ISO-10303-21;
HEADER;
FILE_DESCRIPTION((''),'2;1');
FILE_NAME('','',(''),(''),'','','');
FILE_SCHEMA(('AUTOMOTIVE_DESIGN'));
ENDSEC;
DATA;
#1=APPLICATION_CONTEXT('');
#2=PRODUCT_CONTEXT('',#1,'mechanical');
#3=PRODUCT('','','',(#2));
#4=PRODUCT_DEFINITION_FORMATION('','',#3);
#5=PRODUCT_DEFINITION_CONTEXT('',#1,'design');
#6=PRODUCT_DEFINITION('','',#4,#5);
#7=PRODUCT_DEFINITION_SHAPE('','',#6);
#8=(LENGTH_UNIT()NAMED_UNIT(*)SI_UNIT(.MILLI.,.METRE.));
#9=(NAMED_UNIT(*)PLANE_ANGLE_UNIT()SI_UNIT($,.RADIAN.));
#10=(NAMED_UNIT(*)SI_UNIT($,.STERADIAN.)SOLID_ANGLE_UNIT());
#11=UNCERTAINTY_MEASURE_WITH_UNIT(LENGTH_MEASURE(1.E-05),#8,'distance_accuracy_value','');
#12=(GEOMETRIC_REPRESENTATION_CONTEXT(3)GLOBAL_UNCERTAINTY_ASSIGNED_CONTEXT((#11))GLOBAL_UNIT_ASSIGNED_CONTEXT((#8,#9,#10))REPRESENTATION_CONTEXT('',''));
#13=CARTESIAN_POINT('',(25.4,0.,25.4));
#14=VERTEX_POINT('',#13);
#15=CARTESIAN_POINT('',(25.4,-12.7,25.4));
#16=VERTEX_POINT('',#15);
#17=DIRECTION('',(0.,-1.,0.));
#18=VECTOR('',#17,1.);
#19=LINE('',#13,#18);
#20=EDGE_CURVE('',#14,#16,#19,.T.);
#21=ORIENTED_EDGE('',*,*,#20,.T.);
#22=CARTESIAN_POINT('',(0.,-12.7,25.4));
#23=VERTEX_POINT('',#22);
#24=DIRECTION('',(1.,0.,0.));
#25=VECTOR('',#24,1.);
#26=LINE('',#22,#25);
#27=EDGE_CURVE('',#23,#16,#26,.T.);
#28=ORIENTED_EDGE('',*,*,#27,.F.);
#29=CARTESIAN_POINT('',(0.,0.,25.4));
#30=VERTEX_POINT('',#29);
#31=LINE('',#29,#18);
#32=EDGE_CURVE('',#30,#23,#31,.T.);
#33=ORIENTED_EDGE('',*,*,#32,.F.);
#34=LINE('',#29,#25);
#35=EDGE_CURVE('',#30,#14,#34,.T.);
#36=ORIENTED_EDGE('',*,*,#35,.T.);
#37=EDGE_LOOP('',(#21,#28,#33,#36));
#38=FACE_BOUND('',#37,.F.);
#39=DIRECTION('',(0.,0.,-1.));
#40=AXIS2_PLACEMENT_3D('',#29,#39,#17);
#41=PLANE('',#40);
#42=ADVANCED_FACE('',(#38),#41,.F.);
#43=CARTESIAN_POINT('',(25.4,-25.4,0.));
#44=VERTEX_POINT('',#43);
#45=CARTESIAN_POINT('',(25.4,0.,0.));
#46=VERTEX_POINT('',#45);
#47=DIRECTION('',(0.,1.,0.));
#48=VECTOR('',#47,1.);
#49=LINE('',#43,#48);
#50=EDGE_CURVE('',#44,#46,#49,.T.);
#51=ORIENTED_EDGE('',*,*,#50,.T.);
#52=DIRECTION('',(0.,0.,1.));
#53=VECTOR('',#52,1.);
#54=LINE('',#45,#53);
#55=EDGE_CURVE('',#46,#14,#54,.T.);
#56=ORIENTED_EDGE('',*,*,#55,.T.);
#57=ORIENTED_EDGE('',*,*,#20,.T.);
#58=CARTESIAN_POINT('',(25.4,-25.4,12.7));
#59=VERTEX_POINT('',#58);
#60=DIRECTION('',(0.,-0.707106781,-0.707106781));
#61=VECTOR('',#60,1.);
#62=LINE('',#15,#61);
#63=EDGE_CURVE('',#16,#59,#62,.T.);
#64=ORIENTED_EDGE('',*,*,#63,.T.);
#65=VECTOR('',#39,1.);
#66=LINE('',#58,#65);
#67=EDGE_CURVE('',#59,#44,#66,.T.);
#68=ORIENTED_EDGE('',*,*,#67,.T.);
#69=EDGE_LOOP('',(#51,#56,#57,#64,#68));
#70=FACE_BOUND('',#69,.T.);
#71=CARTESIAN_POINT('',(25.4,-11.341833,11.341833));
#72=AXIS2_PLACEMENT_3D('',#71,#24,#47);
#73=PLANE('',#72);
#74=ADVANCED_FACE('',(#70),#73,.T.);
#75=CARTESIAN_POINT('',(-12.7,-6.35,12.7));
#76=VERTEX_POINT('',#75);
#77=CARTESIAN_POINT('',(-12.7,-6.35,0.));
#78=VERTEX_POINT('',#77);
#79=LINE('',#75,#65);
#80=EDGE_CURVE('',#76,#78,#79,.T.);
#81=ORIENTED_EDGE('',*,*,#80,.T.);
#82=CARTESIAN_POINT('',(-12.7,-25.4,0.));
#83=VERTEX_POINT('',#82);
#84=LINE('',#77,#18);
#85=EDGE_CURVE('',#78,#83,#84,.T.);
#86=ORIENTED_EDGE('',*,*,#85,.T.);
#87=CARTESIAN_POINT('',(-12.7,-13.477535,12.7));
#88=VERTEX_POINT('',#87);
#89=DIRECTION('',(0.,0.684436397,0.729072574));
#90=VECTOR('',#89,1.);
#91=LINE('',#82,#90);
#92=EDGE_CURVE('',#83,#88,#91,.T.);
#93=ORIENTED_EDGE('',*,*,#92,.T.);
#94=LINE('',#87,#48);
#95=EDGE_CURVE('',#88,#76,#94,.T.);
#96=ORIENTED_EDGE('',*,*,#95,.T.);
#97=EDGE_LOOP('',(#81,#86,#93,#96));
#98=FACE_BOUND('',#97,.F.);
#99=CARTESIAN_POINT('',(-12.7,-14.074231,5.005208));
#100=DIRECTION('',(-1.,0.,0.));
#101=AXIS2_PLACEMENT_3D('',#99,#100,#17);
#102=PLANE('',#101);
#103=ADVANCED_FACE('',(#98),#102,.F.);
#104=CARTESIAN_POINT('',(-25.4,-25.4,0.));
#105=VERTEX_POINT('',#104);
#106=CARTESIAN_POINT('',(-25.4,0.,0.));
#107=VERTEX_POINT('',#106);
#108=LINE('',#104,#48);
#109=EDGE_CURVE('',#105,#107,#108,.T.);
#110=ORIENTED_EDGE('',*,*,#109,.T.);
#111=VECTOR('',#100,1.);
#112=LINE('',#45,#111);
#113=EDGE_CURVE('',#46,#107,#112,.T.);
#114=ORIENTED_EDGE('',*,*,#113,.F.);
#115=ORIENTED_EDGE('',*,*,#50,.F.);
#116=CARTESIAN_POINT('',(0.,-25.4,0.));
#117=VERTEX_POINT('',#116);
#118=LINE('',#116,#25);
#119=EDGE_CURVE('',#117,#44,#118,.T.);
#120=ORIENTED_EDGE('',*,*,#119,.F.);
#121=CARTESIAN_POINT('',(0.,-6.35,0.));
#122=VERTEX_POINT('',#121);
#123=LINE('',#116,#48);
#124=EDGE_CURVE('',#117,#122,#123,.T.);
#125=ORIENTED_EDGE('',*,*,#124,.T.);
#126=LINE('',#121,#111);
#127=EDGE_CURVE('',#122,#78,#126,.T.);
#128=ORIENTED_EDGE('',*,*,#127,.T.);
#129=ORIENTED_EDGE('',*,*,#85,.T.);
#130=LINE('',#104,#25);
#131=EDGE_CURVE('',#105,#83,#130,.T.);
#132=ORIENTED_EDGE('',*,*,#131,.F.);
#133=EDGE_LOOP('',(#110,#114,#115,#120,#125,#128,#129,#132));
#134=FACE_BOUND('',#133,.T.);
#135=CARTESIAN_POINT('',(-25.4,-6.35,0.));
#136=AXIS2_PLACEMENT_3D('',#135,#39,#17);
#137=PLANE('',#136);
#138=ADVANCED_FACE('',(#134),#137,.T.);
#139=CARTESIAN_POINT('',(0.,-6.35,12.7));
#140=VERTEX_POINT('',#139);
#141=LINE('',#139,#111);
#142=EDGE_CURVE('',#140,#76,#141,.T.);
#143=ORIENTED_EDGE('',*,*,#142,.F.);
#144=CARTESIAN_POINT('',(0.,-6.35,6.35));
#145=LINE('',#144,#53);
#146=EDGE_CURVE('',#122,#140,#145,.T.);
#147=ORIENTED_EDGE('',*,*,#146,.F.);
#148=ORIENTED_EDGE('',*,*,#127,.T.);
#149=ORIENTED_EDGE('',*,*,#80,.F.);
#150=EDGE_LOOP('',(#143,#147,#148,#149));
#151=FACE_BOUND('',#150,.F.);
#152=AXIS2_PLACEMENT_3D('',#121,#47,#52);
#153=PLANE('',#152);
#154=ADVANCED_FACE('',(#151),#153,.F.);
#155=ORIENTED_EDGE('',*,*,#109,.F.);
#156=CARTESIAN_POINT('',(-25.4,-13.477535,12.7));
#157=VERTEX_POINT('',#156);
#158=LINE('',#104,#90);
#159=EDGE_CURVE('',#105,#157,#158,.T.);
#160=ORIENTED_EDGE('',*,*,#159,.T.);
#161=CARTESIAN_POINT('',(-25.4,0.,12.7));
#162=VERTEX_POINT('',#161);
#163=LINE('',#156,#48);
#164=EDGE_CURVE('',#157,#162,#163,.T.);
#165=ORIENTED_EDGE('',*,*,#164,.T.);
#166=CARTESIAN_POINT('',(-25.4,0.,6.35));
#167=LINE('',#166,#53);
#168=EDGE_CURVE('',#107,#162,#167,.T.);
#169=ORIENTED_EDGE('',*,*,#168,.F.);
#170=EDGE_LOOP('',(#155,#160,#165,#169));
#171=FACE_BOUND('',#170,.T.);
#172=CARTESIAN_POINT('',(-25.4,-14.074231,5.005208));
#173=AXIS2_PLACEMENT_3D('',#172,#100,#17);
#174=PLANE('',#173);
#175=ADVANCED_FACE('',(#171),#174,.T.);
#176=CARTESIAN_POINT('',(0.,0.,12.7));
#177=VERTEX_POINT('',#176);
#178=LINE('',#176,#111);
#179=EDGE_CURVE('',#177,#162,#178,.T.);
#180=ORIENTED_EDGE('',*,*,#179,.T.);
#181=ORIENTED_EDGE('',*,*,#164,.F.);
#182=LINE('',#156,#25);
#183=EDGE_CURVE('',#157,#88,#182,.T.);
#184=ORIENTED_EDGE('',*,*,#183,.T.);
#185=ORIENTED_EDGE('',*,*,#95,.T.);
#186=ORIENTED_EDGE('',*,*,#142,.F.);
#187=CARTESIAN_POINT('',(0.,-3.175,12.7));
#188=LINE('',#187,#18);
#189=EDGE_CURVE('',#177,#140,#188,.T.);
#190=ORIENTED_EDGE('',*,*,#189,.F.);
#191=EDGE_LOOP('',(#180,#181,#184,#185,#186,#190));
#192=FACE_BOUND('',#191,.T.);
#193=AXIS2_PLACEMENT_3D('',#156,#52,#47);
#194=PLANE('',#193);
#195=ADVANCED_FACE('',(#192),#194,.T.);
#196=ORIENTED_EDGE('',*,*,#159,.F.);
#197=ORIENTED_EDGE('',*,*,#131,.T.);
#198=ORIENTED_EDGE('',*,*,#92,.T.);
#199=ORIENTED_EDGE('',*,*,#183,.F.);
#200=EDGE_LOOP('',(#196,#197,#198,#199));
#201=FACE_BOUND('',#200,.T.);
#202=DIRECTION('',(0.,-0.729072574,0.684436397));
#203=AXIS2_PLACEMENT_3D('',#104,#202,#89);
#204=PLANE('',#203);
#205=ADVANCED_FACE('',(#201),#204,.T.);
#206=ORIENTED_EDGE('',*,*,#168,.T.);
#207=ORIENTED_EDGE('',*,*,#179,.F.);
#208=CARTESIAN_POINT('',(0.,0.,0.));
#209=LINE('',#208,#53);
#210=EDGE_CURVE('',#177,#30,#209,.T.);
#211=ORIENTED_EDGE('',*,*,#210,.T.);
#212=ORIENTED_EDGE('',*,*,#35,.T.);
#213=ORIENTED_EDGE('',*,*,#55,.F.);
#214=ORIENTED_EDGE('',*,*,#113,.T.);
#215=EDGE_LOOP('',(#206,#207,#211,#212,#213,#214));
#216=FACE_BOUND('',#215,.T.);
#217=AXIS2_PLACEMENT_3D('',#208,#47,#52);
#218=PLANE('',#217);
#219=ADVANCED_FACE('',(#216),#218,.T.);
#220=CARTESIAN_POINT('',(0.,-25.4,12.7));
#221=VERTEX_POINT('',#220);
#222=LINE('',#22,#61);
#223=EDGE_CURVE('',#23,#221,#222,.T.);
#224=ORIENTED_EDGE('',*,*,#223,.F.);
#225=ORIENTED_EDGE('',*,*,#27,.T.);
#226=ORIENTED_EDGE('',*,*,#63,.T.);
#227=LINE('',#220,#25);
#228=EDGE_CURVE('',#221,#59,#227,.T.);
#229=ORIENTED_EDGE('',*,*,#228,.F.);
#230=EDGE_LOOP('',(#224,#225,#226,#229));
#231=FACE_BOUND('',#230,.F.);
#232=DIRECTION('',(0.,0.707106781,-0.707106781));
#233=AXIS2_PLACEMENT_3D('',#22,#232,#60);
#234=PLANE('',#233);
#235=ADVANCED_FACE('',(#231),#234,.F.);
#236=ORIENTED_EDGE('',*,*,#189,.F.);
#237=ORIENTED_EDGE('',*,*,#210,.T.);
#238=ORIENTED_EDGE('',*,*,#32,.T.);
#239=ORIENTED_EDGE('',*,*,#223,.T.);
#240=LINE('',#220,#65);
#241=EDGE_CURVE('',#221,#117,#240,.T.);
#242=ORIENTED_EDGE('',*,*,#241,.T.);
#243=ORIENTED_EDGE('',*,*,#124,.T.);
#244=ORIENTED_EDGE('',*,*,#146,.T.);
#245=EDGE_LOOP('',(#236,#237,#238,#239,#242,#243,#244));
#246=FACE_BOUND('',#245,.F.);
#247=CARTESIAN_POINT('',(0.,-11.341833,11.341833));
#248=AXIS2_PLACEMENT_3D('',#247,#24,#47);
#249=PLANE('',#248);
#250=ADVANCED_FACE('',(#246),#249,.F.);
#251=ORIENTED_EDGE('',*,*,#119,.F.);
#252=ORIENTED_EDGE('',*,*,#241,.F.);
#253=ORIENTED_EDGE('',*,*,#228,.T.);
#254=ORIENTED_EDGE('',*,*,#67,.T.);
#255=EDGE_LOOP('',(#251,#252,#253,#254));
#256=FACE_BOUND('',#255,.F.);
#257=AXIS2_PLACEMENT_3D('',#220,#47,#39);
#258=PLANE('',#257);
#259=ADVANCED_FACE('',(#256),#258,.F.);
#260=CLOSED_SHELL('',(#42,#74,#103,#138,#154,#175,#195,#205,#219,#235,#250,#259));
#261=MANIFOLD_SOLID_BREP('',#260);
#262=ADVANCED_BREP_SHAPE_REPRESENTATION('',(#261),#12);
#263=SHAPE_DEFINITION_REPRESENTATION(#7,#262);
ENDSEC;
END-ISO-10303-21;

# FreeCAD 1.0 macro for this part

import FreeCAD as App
import Part
import Sketcher
from FreeCAD import Vector
Q = App.Units.Quantity

doc = App.newDocument("Part")
body = doc.addObject("PartDesign::Body", "Body")

# Sketch on YZ plane
sketch1 = body.newObject("Sketcher::SketchObject", "Sketch")
sketch1.AttachmentSupport = (doc.getObject("YZ_Plane"), [""])
sketch1.MapMode = "FlatFace"
sketch1.addGeometry([
    Part.LineSegment(Vector(-25, 0, 0), Vector(0, 0, 0)),  # 0
    Part.LineSegment(Vector(0, 0, 0), Vector(0, 25, 0)),  # 1
    Part.LineSegment(Vector(0, 25, 0), Vector(-13, 25, 0)),  # 2
    Part.LineSegment(Vector(-13, 25, 0), Vector(-25, 13, 0)),  # 3
    Part.LineSegment(Vector(-25, 13, 0), Vector(-25, 0, 0)),  # 4
], False)
sketch1.addConstraint([
    Sketcher.Constraint("Coincident", 0, 2, 1, 1),
    Sketcher.Constraint("Coincident", 1, 2, 2, 1),
    Sketcher.Constraint("Coincident", 2, 2, 3, 1),
    Sketcher.Constraint("Coincident", 3, 2, 4, 1),
    Sketcher.Constraint("Coincident", 4, 2, 0, 1),
    Sketcher.Constraint("Horizontal", 0),
    Sketcher.Constraint("Vertical", 1),
    Sketcher.Constraint("Horizontal", 2),
    Sketcher.Constraint("Vertical", 4),
    Sketcher.Constraint("Coincident", 0, 2, -1, 1),
    Sketcher.Constraint("Equal", 0, 1),
    Sketcher.Constraint("Equal", 2, 4),
    Sketcher.Constraint("DistanceX", 0, 1, 0, 2, Q("1 in")),
    Sketcher.Constraint("DistanceX", 2, 2, 2, 1, Q("0.5 in")),
])
pad1 = body.newObject("PartDesign::Pad", "Pad")
pad1.Profile = sketch1
pad1.Length = Q("1 in")

# Sketch on YZ plane
sketch2 = body.newObject("Sketcher::SketchObject", "Sketch001")
sketch2.AttachmentSupport = (doc.getObject("YZ_Plane"), [""])
sketch2.MapMode = "FlatFace"
sketch2.addGeometry([
    Part.LineSegment(Vector(0, 13, 0), Vector(0, 0, 0)),
    Part.LineSegment(Vector(0, 0, 0), Vector(-6, 0, 0)),
    Part.LineSegment(Vector(-6, 0, 0), Vector(-6, 13, 0)),
    Part.LineSegment(Vector(-6, 13, 0), Vector(0, 13, 0)),
], False)
sketch2.addConstraint([
    Sketcher.Constraint("Coincident", 0, 2, 1, 1),
    Sketcher.Constraint("Coincident", 1, 2, 2, 1),
    Sketcher.Constraint("Coincident", 2, 2, 3, 1),
    Sketcher.Constraint("Coincident", 3, 2, 0, 1),
    Sketcher.Constraint("Vertical", 0),
    Sketcher.Constraint("Horizontal", 1),
    Sketcher.Constraint("Vertical", 2),
    Sketcher.Constraint("Horizontal", 3),
    Sketcher.Constraint("Coincident", 0, 2, -1, 1),
    Sketcher.Constraint("DistanceY", 0, 2, 0, 1, Q("0.5 in")),
    Sketcher.Constraint("DistanceX", 1, 2, 1, 1, Q("0.25 in")),
])
pad2 = body.newObject("PartDesign::Pad", "Pad001")
pad2.Profile = sketch2
pad2.Length = Q("1 in")
pad2.Reversed = True

# Sketch on YZ plane
sketch3 = body.newObject("Sketcher::SketchObject", "Sketch002")
sketch3.AttachmentSupport = (doc.getObject("YZ_Plane"), [""])
sketch3.MapMode = "FlatFace"
sketch3.AttachmentOffset = App.Placement(Vector(0, 0, -1 * 25.4), App.Rotation())
sketch3.addGeometry([
    Part.LineSegment(Vector(-6, 0, 0), Vector(-25, 0, 0)),
    Part.LineSegment(Vector(-25, 0, 0), Vector(-13, 13, 0)),
    Part.LineSegment(Vector(-13, 13, 0), Vector(-6, 13, 0)),
    Part.LineSegment(Vector(-6, 13, 0), Vector(-6, 0, 0)),
], False)
sketch3.addConstraint([
    Sketcher.Constraint("Coincident", 0, 2, 1, 1),
    Sketcher.Constraint("Coincident", 1, 2, 2, 1),
    Sketcher.Constraint("Coincident", 2, 2, 3, 1),
    Sketcher.Constraint("Coincident", 3, 2, 0, 1),
    Sketcher.Constraint("Horizontal", 0),
    Sketcher.Constraint("Horizontal", 2),
    Sketcher.Constraint("Vertical", 3),
    Sketcher.Constraint("PointOnObject", 0, 2, -1),
    Sketcher.Constraint("DistanceY", 3, 2, 3, 1, Q("0.5 in")),
    Sketcher.Constraint("DistanceX", 0, 2, -1, 1, Q("1 in")),
    Sketcher.Constraint("DistanceX", 0, 2, 0, 1, Q("0.75 in")),
    Sketcher.Constraint("Distance", 1, 17.419391),
])
pad3 = body.newObject("PartDesign::Pad", "Pad002")
pad3.Profile = sketch3
pad3.Length = Q("0.5 in")

doc.recompute()
